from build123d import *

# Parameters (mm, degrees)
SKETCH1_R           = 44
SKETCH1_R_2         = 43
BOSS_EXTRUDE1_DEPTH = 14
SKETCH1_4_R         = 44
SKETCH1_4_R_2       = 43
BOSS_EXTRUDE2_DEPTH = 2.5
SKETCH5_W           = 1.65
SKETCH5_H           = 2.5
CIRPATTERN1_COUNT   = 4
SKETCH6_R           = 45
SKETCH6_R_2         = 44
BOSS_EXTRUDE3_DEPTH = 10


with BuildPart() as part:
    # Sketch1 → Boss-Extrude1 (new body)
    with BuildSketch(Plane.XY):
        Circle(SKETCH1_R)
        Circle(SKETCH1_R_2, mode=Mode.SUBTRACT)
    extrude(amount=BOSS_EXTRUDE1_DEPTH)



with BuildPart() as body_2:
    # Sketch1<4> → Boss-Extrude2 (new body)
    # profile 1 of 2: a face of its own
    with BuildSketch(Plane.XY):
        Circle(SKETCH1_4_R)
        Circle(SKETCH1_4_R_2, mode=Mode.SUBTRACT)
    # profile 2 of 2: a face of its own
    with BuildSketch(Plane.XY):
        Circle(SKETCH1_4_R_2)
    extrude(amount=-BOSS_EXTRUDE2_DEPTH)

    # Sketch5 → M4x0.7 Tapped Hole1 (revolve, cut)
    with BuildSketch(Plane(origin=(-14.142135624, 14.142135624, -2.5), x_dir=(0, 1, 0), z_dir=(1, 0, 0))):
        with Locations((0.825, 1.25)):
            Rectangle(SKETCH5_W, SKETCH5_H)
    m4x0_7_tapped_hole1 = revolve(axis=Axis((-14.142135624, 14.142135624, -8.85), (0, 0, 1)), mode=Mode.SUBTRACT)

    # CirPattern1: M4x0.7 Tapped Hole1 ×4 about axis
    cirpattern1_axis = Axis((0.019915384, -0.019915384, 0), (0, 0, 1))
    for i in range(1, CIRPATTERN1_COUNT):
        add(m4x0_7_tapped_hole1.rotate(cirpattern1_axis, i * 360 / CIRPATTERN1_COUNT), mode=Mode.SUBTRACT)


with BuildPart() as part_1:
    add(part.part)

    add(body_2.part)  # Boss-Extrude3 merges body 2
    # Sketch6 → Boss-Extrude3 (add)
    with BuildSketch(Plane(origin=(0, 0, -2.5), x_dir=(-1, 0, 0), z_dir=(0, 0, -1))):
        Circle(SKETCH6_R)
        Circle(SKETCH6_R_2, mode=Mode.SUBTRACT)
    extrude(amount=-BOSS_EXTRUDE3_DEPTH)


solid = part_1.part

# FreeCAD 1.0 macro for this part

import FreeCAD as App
import Part
import Sketcher

V = App.Vector


def add_polygon(sketch, points):
    """Adds a closed chain of lines whose ends are joined by coincident constraints."""
    first, n = sketch.GeometryCount, len(points)
    for a, b in zip(points, points[1:] + points[:1]):
        sketch.addGeometry(Part.LineSegment(App.Vector(*a, 0), App.Vector(*b, 0)), False)
    for i in range(n):
        sketch.addConstraint(Sketcher.Constraint("Coincident", first + i, 2, first + (i + 1) % n, 1))

doc = App.newDocument("Part")
params = doc.addObject("Spreadsheet::Sheet", "Params")
for row, (alias, value) in enumerate([
    ("sketch1_diameter", "88 mm"),
    ("sketch1_diameter2", "86 mm"),
    ("pad1_length", "14 mm"),
    ("sketch2_diameter", "88 mm"),
    ("pad2_length", "2.5 mm"),
    ("sketch3_height", "2.5 mm"),
    ("sketch3_width", "1.65 mm"),
    ("groove_angle", "360 deg"),
    ("sketch4_diameter", "90 mm"),
    ("sketch4_diameter2", "88 mm"),
    ("pad3_length", "10 mm"),
], start=1):
    params.set(f"A{row}", alias)
    params.set(f"B{row}", "=" + value)
    params.setAlias(f"B{row}", alias)

body = doc.addObject("PartDesign::Body", "Body")

# Sketch on XY plane
sketch1 = body.newObject("Sketcher::SketchObject", "Sketch")
sketch1.AttachmentSupport = (doc.getObject("XY_Plane"), [""])
sketch1.MapMode = "FlatFace"
sketch1.addGeometry([
    Part.Circle(V(0, 0, 0), V(0, 0, 1), 44),
    Part.Circle(V(0, 0, 0), V(0, 0, 1), 43),
], False)
sketch1.addConstraint([
    Sketcher.Constraint("Coincident", 0, 3, -1, 1),
    Sketcher.Constraint("Coincident", 1, 3, -1, 1),
    Sketcher.Constraint("Diameter", 0, 88.0),
    Sketcher.Constraint("Diameter", 1, 86.0),
])
sketch1.setExpression("Constraints[2]", "Params.sketch1_diameter")
sketch1.setExpression("Constraints[3]", "Params.sketch1_diameter2")
pad1 = body.newObject("PartDesign::Pad", "Pad")
pad1.Profile = sketch1
pad1.setExpression("Length", "Params.pad1_length")
body2 = doc.addObject("PartDesign::Body", "Body001")

# Sketch on XY plane
sketch2 = body2.newObject("Sketcher::SketchObject", "Sketch001")
sketch2.AttachmentSupport = (doc.getObject("XY_Plane001"), [""])
sketch2.MapMode = "FlatFace"
sketch2.addGeometry(Part.Circle(V(0, 0, 0), V(0, 0, 1), 44), False)
sketch2.addConstraint([
    Sketcher.Constraint("Coincident", 0, 3, -1, 1),
    Sketcher.Constraint("Diameter", 0, 88.0),
])
sketch2.setExpression("Constraints[1]", "Params.sketch2_diameter")
pad2 = body2.newObject("PartDesign::Pad", "Pad001")
pad2.Profile = sketch2
pad2.setExpression("Length", "Params.pad2_length")
pad2.Reversed = True

# Sketch on YZ plane
sketch3 = body2.newObject("Sketcher::SketchObject", "Sketch002")
sketch3.AttachmentSupport = (doc.getObject("YZ_Plane001"), [""])
sketch3.MapMode = "FlatFace"
sketch3.AttachmentOffset = App.Placement(V(0, 0, -14.142136), App.Rotation())
add_polygon(sketch3, [(14.142136, 0), (14.142136, -2.5), (15.792136, -2.5), (15.792136, 0)])  # lines 0-3
sketch3.addGeometry(Part.LineSegment(V(14.142136, -2.5, 0), V(14.142136, 0, 0)), True)  # axis
sketch3.addConstraint([
    Sketcher.Constraint("Vertical", 0),
    Sketcher.Constraint("Horizontal", 1),
    Sketcher.Constraint("Vertical", 2),
    Sketcher.Constraint("Horizontal", 3),
    Sketcher.Constraint("Vertical", 4),
    Sketcher.Constraint("Coincident", 4, 1, 0, 2),
    Sketcher.Constraint("PointOnObject", 2, 2, -1),
    Sketcher.Constraint("PointOnObject", 4, 2, -1),
    Sketcher.Constraint("DistanceY", 0, 2, 0, 1, 2.5),
    Sketcher.Constraint("DistanceX", 1, 1, 1, 2, 1.65),
    Sketcher.Constraint("DistanceX", -1, 1, 0, 2, 14.142136),
])
sketch3.setExpression("Constraints[12]", "Params.sketch3_height")
sketch3.setExpression("Constraints[13]", "Params.sketch3_width")
groove = body2.newObject("PartDesign::Groove", "Groove")
groove.Profile = sketch3
groove.ReferenceAxis = (sketch3, ["Axis0"])
groove.setExpression("Angle", "Params.groove_angle")
doc.recompute()

datumline = body2.newObject("PartDesign::Line", "DatumLine")
datumline.Placement = App.Placement(V(0.019915, -0.019915, 0), App.Rotation(V(0, 0, 1), V(0, 0, 1)))
polarpattern = body2.newObject("PartDesign::PolarPattern", "PolarPattern")
polarpattern.Originals = [groove]
polarpattern.Axis = (datumline, [""])
polarpattern.Angle = 360
polarpattern.Occurrences = 4
body2.Tip = polarpattern
doc.recompute()

boolean = body.newObject("PartDesign::Boolean", "Boolean")
boolean.Type = "Fuse"
boolean.addObjects([body2])

# Sketch on XY plane
sketch4 = body.newObject("Sketcher::SketchObject", "Sketch003")
sketch4.AttachmentSupport = (doc.getObject("XY_Plane"), [""])
sketch4.MapMode = "FlatFace"
sketch4.AttachmentOffset = App.Placement(V(0, 0, -2.5), App.Rotation())
sketch4.addGeometry([
    Part.Circle(V(0, 0, 0), V(0, 0, 1), 45),
    Part.Circle(V(0, 0, 0), V(0, 0, 1), 44),
], False)
sketch4.addConstraint([
    Sketcher.Constraint("Coincident", 0, 3, -1, 1),
    Sketcher.Constraint("Coincident", 1, 3, -1, 1),
    Sketcher.Constraint("Diameter", 0, 90.0),
    Sketcher.Constraint("Diameter", 1, 88.0),
])
sketch4.setExpression("Constraints[2]", "Params.sketch4_diameter")
sketch4.setExpression("Constraints[3]", "Params.sketch4_diameter2")
pad3 = body.newObject("PartDesign::Pad", "Pad002")
pad3.Profile = sketch4
pad3.setExpression("Length", "Params.pad3_length")

doc.recompute()
